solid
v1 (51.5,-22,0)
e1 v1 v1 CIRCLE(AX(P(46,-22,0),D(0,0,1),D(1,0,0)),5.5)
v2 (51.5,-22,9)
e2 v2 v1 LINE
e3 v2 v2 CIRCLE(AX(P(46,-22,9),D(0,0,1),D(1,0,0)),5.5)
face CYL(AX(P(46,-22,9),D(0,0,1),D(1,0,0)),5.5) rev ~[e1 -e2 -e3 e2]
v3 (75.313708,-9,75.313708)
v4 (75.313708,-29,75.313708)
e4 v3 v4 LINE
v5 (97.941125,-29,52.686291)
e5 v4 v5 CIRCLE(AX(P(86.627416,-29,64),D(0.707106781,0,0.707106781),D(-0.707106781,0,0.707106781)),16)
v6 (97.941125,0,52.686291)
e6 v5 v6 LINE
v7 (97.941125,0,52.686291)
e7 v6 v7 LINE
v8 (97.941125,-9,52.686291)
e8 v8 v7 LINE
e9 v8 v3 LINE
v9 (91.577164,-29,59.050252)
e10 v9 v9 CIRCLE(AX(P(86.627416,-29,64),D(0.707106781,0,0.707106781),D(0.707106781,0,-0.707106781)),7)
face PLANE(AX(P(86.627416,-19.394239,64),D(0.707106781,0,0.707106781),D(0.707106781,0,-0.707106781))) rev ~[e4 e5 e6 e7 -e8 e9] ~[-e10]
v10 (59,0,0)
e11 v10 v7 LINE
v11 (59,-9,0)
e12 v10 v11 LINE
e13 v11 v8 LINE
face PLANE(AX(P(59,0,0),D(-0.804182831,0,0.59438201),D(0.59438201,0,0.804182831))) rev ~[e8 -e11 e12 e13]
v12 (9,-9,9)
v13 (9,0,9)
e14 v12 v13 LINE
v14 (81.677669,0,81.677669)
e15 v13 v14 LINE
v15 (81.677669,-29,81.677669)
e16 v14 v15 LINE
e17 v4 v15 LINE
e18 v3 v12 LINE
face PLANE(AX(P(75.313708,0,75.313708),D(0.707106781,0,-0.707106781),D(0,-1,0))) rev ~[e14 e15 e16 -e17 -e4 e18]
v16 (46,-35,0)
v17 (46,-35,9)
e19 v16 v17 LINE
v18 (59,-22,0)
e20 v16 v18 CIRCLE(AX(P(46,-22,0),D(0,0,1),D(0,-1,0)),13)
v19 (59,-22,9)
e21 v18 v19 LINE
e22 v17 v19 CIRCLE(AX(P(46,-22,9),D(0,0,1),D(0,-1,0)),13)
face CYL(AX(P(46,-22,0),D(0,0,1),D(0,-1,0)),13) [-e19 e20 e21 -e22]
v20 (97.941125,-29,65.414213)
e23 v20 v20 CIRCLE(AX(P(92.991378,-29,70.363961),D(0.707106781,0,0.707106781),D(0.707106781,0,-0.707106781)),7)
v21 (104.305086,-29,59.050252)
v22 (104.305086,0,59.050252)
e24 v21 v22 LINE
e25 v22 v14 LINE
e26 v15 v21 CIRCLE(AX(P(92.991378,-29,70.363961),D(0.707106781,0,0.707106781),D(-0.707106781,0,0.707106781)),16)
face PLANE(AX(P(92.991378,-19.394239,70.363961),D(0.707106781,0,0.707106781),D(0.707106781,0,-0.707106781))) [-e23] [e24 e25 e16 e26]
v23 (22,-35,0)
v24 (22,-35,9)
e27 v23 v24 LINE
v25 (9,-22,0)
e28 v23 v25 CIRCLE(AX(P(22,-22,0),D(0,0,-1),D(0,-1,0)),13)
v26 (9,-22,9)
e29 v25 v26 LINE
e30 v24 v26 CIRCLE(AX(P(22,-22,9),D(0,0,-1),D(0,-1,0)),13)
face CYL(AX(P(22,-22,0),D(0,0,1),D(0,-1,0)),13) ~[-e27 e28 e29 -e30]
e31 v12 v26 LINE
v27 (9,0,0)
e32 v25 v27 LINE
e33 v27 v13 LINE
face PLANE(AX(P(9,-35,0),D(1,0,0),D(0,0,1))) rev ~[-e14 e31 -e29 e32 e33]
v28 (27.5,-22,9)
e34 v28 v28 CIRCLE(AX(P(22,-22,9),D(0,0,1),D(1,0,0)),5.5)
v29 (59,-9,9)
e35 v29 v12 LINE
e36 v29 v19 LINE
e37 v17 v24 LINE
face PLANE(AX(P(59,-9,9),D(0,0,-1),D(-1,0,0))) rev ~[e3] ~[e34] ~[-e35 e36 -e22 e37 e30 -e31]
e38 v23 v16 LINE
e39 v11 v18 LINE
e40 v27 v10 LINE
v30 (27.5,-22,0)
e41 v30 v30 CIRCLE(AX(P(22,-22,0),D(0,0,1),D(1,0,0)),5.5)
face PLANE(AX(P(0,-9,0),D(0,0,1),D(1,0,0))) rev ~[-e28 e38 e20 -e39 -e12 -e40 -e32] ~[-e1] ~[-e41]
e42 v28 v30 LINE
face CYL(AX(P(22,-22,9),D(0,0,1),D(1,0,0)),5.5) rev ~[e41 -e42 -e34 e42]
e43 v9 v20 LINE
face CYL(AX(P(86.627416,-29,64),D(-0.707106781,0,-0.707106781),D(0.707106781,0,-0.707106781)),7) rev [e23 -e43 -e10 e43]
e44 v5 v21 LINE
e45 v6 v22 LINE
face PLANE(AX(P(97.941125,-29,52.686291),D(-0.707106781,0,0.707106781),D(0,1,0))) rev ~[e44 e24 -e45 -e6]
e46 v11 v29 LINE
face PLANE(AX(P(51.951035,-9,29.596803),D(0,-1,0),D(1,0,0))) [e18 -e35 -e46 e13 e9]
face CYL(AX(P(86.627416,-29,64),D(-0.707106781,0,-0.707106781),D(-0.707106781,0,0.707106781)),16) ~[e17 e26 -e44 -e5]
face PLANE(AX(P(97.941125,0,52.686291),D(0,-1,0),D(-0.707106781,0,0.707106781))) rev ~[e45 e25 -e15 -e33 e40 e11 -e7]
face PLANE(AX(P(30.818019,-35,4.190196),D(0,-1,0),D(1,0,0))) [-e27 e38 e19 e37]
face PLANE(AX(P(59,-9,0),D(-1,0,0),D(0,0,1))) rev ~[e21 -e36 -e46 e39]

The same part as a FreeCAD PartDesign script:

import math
import FreeCAD as App
import Part
import Sketcher

V = App.Vector
Q = App.Units.Quantity


def edges_at(feature, points):
    """Names of the edges that pass closest to the given points."""
    edges = feature.Shape.Edges
    near = lambda p: min(range(len(edges)), key=lambda i: edges[i].distToShape(Part.Vertex(*p))[0])
    return sorted({f"Edge{near(p) + 1}" for p in points})

doc = App.newDocument("Part")
body = doc.addObject("PartDesign::Body", "Body")

sketch1 = body.newObject("Sketcher::SketchObject", "Sketch")
sketch1.AttachmentSupport = (doc.getObject("XZ_Plane"), [""])
sketch1.MapMode = "FlatFace"
sketch1.addGeometry([
    Part.LineSegment(V(75, 75, 0), V(0, 0, 0)),
    Part.LineSegment(V(0, 0, 0), V(59, 0, 0)),
    Part.LineSegment(V(59, 0, 0), V(98, 53, 0)),
    Part.LineSegment(V(98, 53, 0), V(75, 75, 0)),
], False)
sketch1.addConstraint([
    Sketcher.Constraint("Coincident", 0, 2, 1, 1),
    Sketcher.Constraint("Coincident", 1, 2, 2, 1),
    Sketcher.Constraint("Coincident", 2, 2, 3, 1),
    Sketcher.Constraint("Coincident", 3, 2, 0, 1),
    Sketcher.Constraint("Horizontal", 1),
    Sketcher.Constraint("Coincident", 0, 2, -1, 1),
    Sketcher.Constraint("Perpendicular", 0, 3),
    Sketcher.Constraint("DistanceX", 1, 1, 1, 2, Q("59 mm")),
    Sketcher.Constraint("Angle", 0, Q("-135 deg")),
    Sketcher.Constraint("Distance", 3, Q("31.999999 mm")),
    Sketcher.Constraint("DistanceX", -1, 1, 3, 2, Q("75.313708 mm")),
])
pad1 = body.newObject("PartDesign::Pad", "Pad")
pad1.Profile = sketch1
pad1.Length = 9

sketch2 = body.newObject("Sketcher::SketchObject", "Sketch001")
sketch2.AttachmentSupport = (doc.getObject("XZ_Plane"), [""])
sketch2.MapMode = "FlatFace"
sketch2.AttachmentOffset = App.Placement(V(0, 0, 9), App.Rotation())
sketch2.addGeometry([
    Part.LineSegment(V(0, 0, 0), V(59, 0, 0)),
    Part.LineSegment(V(59, 0, 0), V(59, 9, 0)),
    Part.LineSegment(V(59, 9, 0), V(9, 9, 0)),
    Part.LineSegment(V(9, 9, 0), V(0, 0, 0)),
], False)
sketch2.addConstraint([
    Sketcher.Constraint("Coincident", 0, 2, 1, 1),
    Sketcher.Constraint("Coincident", 1, 2, 2, 1),
    Sketcher.Constraint("Coincident", 2, 2, 3, 1),
    Sketcher.Constraint("Coincident", 3, 2, 0, 1),
    Sketcher.Constraint("Horizontal", 0),
    Sketcher.Constraint("Vertical", 1),
    Sketcher.Constraint("Horizontal", 2),
    Sketcher.Constraint("Coincident", 3, 2, -1, 1),
    Sketcher.Constraint("DistanceX", 0, 1, 0, 2, Q("59 mm")),
    Sketcher.Constraint("DistanceX", 2, 2, 2, 1, Q("50 mm")),
    Sketcher.Constraint("DistanceY", 1, 1, 1, 2, Q("9 mm")),
])
pad2 = body.newObject("PartDesign::Pad", "Pad001")
pad2.Profile = sketch2
pad2.Length = 26

sketch3 = body.newObject("Sketcher::SketchObject", "Sketch002")
sketch3.AttachmentSupport = (doc.getObject("XZ_Plane"), [""])
sketch3.MapMode = "FlatFace"
sketch3.AttachmentOffset = App.Placement(V(0, 0, 35), App.Rotation())
sketch3.addGeometry([
    Part.LineSegment(V(9, 9, 0), V(0, 0, 0)),
    Part.LineSegment(V(0, 0, 0), V(9, 0, 0)),
    Part.LineSegment(V(9, 0, 0), V(9, 9, 0)),
], False)
sketch3.addConstraint([
    Sketcher.Constraint("Coincident", 0, 2, 1, 1),
    Sketcher.Constraint("Coincident", 1, 2, 2, 1),
    Sketcher.Constraint("Coincident", 2, 2, 0, 1),
    Sketcher.Constraint("Horizontal", 1),
    Sketcher.Constraint("Vertical", 2),
    Sketcher.Constraint("Coincident", 0, 2, -1, 1),
    Sketcher.Constraint("Equal", 1, 2),
    Sketcher.Constraint("DistanceX", 1, 1, 1, 2, Q("9 mm")),
])
pocket1 = body.newObject("PartDesign::Pocket", "Pocket")
pocket1.Profile = sketch3
pocket1.Type = "ThroughAll"

sketch4 = body.newObject("Sketcher::SketchObject", "Sketch003")
sketch4.Placement = App.Placement(V(75.313708, 0, 75.313708), App.Rotation(V(0.707106781, 0, -0.707106781), V(0, 0.999999999, 0), V(0.707106781, 0, 0.707106781), "ZXY"))
sketch4.addGeometry([
    Part.LineSegment(V(32, 0, 0), V(0, 0, 0)),
    Part.LineSegment(V(0, 0, 0), V(0, -29, 0)),
    Part.ArcOfCircle(Part.Circle(V(16, -29, 0), V(0, 0, 1), 16), math.radians(180), math.radians(360)),
    Part.LineSegment(V(32, -29, 0), V(32, 0, 0)),
    Part.Circle(V(16, -29, 0), V(0, 0, 1), 7),
], False)
sketch4.addConstraint([
    Sketcher.Constraint("Coincident", 0, 2, 1, 1),
    Sketcher.Constraint("Tangent", 1, 2, 2, 1),
    Sketcher.Constraint("Tangent", 2, 2, 3, 1),
    Sketcher.Constraint("Coincident", 3, 2, 0, 1),
    Sketcher.Constraint("Horizontal", 0),
    Sketcher.Constraint("Vertical", 1),
    Sketcher.Constraint("Vertical", 3),
    Sketcher.Constraint("Coincident", 0, 2, -1, 1),
    Sketcher.Constraint("Coincident", 4, 3, 2, 3),
    Sketcher.Constraint("Diameter", 4, Q("14 mm")),
    Sketcher.Constraint("Radius", 2, Q("16 mm")),
    Sketcher.Constraint("DistanceY", 1, 2, 1, 1, Q("29 mm")),
])
pad3 = body.newObject("PartDesign::Pad", "Pad002")
pad3.Profile = sketch4
pad3.Length = 9
doc.recompute()

fillet = body.newObject("PartDesign::Fillet", "Fillet")
fillet.Base = (pad3, edges_at(pad3, [(9, -35, 4.5), (59, -35, 4.5)]))
fillet.Radius = 13

sketch5 = body.newObject("Sketcher::SketchObject", "Sketch004")
sketch5.AttachmentSupport = (doc.getObject("XY_Plane"), [""])
sketch5.MapMode = "FlatFace"
sketch5.AttachmentOffset = App.Placement(V(0, 0, 9), App.Rotation())
sketch5.addGeometry([
    Part.Circle(V(22, -22, 0), V(0, 0, 1), 6),
    Part.Circle(V(46, -22, 0), V(0, 0, 1), 6),
], False)
sketch5.addConstraint([
    Sketcher.Constraint("Equal", 0, 1),
    Sketcher.Constraint("Horizontal", 0, 3, 1, 3),
    Sketcher.Constraint("Diameter", 0, Q("11 mm")),
    Sketcher.Constraint("DistanceX", -1, 1, 0, 3, Q("22 mm")),
    Sketcher.Constraint("DistanceY", 0, 3, -1, 1, Q("22 mm")),
    Sketcher.Constraint("DistanceX", -1, 1, 1, 3, Q("46 mm")),
])
pocket2 = body.newObject("PartDesign::Pocket", "Pocket001")
pocket2.Profile = sketch5
pocket2.Type = "ThroughAll"

doc.recompute()
